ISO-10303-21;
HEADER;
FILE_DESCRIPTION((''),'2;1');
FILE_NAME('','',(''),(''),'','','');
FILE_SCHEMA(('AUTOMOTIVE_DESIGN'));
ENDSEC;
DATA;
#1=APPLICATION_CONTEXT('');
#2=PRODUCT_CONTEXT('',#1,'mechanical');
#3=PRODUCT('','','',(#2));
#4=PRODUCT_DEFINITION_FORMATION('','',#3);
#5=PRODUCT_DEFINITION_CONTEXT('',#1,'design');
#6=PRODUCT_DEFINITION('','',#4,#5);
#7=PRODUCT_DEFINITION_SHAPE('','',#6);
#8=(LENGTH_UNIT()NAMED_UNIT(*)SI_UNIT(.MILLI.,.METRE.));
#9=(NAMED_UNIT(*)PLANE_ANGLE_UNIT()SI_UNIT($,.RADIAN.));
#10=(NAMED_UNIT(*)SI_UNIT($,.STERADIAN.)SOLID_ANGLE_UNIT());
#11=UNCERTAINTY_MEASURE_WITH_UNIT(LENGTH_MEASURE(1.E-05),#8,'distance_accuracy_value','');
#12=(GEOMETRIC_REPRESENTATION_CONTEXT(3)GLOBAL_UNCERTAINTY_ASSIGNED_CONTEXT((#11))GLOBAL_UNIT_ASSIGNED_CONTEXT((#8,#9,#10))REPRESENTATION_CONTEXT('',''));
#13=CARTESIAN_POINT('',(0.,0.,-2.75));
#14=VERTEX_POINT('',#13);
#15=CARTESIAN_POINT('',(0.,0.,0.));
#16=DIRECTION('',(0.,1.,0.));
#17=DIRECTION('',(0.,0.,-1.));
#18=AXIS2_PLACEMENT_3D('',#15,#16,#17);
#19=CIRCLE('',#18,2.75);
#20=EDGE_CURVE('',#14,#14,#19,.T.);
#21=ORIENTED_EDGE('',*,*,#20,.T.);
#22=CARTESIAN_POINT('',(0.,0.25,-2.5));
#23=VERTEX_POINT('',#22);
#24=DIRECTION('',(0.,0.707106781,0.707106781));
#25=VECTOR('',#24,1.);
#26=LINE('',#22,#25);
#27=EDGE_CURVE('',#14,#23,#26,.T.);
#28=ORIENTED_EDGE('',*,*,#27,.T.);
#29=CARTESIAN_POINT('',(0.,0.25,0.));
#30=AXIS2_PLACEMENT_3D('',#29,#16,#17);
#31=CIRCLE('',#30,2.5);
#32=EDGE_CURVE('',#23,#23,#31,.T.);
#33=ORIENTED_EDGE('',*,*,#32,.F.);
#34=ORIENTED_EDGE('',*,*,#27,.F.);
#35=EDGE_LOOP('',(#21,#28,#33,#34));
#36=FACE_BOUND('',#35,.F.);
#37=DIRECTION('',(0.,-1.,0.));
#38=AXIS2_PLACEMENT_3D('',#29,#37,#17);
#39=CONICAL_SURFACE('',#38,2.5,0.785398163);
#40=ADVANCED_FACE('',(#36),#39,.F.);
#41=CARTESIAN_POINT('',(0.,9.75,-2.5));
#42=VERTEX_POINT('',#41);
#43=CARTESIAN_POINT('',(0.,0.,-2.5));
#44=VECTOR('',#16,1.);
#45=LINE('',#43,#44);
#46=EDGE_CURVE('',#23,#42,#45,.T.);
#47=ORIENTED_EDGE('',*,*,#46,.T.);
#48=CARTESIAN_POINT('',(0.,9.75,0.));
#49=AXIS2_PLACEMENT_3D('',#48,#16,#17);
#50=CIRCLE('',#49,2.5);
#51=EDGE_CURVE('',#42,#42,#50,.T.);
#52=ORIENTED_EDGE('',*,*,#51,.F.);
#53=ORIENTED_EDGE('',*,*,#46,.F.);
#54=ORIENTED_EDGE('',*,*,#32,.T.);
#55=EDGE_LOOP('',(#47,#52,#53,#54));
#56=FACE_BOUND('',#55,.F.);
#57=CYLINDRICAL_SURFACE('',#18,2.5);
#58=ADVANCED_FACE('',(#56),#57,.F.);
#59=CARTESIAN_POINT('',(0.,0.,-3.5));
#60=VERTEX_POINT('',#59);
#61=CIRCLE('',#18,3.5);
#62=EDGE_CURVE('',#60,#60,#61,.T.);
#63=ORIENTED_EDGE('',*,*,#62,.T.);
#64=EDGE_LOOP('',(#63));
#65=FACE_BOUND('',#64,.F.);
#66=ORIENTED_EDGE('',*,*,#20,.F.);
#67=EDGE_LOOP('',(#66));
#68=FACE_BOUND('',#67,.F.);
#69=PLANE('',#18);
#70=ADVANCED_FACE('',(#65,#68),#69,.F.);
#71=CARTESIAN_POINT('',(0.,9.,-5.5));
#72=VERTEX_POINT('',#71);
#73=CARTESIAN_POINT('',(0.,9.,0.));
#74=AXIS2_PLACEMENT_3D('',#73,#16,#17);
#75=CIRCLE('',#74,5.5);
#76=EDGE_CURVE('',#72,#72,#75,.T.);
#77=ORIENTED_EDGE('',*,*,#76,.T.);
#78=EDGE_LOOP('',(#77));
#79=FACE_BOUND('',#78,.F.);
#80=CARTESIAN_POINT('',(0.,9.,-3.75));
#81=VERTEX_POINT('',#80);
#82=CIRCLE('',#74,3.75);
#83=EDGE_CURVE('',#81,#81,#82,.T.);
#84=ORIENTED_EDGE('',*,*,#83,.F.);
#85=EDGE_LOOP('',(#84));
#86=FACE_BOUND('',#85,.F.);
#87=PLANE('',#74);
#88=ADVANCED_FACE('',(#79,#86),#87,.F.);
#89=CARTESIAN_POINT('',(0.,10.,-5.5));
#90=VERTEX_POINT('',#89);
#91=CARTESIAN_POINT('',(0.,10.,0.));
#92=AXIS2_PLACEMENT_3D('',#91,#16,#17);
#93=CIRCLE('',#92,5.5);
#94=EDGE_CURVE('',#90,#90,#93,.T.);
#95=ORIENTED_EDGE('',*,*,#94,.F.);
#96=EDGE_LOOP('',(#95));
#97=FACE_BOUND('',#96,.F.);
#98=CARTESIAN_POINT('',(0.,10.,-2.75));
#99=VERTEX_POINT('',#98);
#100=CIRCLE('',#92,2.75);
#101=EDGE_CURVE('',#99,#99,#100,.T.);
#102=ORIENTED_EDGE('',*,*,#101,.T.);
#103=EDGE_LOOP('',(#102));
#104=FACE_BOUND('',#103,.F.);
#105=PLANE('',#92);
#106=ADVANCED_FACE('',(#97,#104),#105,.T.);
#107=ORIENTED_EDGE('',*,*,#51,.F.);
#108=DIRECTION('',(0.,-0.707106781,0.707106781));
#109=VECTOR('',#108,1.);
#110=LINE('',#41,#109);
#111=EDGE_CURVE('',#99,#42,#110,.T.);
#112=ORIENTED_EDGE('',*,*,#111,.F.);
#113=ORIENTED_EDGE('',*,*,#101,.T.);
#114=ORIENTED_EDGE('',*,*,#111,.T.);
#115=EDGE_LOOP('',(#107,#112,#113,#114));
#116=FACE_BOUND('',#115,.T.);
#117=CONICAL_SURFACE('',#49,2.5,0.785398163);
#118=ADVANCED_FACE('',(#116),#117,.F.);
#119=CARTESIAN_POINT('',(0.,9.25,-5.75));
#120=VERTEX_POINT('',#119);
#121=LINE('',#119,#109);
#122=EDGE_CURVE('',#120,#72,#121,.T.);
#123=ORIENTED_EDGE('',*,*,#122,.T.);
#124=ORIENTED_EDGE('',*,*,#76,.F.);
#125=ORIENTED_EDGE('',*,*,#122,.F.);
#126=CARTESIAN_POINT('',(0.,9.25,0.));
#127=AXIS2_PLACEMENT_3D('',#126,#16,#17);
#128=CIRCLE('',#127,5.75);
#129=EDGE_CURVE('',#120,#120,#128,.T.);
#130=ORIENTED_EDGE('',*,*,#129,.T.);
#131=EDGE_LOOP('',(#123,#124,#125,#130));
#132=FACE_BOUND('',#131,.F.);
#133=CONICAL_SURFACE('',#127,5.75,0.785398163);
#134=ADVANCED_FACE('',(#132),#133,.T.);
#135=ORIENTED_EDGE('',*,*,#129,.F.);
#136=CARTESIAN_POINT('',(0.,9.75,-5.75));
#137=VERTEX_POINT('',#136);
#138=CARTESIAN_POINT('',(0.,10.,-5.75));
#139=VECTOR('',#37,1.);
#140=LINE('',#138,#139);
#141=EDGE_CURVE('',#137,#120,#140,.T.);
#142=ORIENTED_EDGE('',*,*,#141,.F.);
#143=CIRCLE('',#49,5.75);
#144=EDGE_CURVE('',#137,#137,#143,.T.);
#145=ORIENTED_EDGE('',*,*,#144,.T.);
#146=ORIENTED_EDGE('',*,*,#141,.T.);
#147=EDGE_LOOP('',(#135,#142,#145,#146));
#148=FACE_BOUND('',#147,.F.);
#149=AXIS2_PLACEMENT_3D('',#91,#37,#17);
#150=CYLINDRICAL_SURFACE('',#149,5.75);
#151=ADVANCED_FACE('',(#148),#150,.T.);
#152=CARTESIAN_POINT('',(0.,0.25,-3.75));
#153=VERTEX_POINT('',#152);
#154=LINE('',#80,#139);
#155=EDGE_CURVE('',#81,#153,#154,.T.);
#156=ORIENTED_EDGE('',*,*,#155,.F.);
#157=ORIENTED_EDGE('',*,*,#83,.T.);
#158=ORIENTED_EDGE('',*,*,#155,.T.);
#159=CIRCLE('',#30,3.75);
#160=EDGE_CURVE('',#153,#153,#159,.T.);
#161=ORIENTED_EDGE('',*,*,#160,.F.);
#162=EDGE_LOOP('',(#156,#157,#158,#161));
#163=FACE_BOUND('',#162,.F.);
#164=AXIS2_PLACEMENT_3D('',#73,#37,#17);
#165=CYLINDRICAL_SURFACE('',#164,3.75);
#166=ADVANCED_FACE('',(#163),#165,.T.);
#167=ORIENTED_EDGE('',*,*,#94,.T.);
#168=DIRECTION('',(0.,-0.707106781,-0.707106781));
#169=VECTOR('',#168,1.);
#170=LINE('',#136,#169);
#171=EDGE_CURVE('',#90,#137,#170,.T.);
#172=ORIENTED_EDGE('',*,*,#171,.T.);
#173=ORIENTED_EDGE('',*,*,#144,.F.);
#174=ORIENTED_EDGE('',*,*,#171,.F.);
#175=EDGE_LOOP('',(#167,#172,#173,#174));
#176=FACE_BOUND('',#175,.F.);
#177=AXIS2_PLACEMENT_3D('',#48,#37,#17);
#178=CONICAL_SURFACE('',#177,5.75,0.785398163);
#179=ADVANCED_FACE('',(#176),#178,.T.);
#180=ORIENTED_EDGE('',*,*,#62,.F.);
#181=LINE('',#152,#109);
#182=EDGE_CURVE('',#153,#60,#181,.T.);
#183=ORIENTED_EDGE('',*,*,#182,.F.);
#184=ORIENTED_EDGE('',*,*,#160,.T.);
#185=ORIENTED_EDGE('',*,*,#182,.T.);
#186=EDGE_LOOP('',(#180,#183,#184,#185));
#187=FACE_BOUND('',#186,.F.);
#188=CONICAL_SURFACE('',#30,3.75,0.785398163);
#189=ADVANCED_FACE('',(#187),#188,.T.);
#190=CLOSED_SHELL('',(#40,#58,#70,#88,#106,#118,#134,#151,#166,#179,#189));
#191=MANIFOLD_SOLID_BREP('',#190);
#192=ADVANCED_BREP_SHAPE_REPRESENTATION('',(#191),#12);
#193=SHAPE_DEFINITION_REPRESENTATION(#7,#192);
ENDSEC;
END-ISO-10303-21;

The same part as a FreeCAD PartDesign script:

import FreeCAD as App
import Part
import Sketcher
Q = App.Units.Quantity


def edges_at(feature, points):
    """Names of the edges that pass closest to the given points."""
    edges = feature.Shape.Edges
    near = lambda p: min(range(len(edges)), key=lambda i: edges[i].distToShape(Part.Vertex(*p))[0])
    return sorted({f"Edge{near(p) + 1}" for p in points})


def add_polygon(sketch, points):
    """Adds a closed chain of lines whose ends are joined by coincident constraints."""
    first, n = sketch.GeometryCount, len(points)
    for a, b in zip(points, points[1:] + points[:1]):
        sketch.addGeometry(Part.LineSegment(App.Vector(*a, 0), App.Vector(*b, 0)), False)
    for i in range(n):
        sketch.addConstraint(Sketcher.Constraint("Coincident", first + i, 2, first + (i + 1) % n, 1))

doc = App.newDocument("Part")
params = doc.addObject("Spreadsheet::Sheet", "Params")
for row, (alias, value) in enumerate([
    ("sketch1_width", "10 mm"),
    ("sketch1_width2", "1 mm"),
    ("sketch1_height", "2 mm"),
    ("revolution_angle", "360 deg"),
    ("chamfer_size", "0.25 mm"),
    ("chamfer2_size", "0.25 mm"),
], start=1):
    params.set(f"A{row}", alias)
    params.set(f"B{row}", "=" + value)
    params.setAlias(f"B{row}", alias)

body = doc.addObject("PartDesign::Body", "Body")

# Sketch on YZ plane
sketch1 = body.newObject("Sketcher::SketchObject", "Sketch")
sketch1.AttachmentSupport = (doc.getObject("YZ_Plane"), [""])
sketch1.MapMode = "FlatFace"
add_polygon(sketch1, [(10, -5.8), (10, -2.5), (0, -2.5), (0, -3.8), (9, -3.8), (9, -5.8)])  # lines 0-5
sketch1.addConstraint([
    Sketcher.Constraint("Vertical", 0),
    Sketcher.Constraint("Horizontal", 1),
    Sketcher.Constraint("Vertical", 2),
    Sketcher.Constraint("Horizontal", 3),
    Sketcher.Constraint("Vertical", 4),
    Sketcher.Constraint("Horizontal", 5),
    Sketcher.Constraint("PointOnObject", 1, 2, -2),
    Sketcher.Constraint("DistanceX", 1, 2, 1, 1, Q("10 mm")),
    Sketcher.Constraint("DistanceX", 5, 1, 5, 2, Q("1 mm")),
    Sketcher.Constraint("DistanceY", 0, 2, -1, 1, Q("2.5 mm")),
    Sketcher.Constraint("DistanceY", 4, 2, 4, 1, Q("2 mm")),
    Sketcher.Constraint("DistanceY", 2, 2, -1, 1, Q("3.75 mm")),
])
sketch1.setExpression("Constraints[13]", "Params.sketch1_width")
sketch1.setExpression("Constraints[14]", "Params.sketch1_width2")
sketch1.setExpression("Constraints[16]", "Params.sketch1_height")
revolution = body.newObject("PartDesign::Revolution", "Revolution")
revolution.Profile = sketch1
revolution.ReferenceAxis = (sketch1, ["H_Axis"])
revolution.setExpression("Angle", "Params.revolution_angle")
doc.recompute()

chamfer = body.newObject("PartDesign::Chamfer", "Chamfer")
chamfer.Base = (revolution, edges_at(revolution, [(0, 10, 2.5), (0, 0, 2.5), (0, 0, 3.75)]))
chamfer.setExpression("Size", "Params.chamfer_size")
doc.recompute()

chamfer2 = body.newObject("PartDesign::Chamfer", "Chamfer001")
chamfer2.Base = (chamfer, edges_at(chamfer, [(0, 9, 5.75), (0, 10, 5.75)]))
chamfer2.setExpression("Size", "Params.chamfer2_size")

doc.recompute()
